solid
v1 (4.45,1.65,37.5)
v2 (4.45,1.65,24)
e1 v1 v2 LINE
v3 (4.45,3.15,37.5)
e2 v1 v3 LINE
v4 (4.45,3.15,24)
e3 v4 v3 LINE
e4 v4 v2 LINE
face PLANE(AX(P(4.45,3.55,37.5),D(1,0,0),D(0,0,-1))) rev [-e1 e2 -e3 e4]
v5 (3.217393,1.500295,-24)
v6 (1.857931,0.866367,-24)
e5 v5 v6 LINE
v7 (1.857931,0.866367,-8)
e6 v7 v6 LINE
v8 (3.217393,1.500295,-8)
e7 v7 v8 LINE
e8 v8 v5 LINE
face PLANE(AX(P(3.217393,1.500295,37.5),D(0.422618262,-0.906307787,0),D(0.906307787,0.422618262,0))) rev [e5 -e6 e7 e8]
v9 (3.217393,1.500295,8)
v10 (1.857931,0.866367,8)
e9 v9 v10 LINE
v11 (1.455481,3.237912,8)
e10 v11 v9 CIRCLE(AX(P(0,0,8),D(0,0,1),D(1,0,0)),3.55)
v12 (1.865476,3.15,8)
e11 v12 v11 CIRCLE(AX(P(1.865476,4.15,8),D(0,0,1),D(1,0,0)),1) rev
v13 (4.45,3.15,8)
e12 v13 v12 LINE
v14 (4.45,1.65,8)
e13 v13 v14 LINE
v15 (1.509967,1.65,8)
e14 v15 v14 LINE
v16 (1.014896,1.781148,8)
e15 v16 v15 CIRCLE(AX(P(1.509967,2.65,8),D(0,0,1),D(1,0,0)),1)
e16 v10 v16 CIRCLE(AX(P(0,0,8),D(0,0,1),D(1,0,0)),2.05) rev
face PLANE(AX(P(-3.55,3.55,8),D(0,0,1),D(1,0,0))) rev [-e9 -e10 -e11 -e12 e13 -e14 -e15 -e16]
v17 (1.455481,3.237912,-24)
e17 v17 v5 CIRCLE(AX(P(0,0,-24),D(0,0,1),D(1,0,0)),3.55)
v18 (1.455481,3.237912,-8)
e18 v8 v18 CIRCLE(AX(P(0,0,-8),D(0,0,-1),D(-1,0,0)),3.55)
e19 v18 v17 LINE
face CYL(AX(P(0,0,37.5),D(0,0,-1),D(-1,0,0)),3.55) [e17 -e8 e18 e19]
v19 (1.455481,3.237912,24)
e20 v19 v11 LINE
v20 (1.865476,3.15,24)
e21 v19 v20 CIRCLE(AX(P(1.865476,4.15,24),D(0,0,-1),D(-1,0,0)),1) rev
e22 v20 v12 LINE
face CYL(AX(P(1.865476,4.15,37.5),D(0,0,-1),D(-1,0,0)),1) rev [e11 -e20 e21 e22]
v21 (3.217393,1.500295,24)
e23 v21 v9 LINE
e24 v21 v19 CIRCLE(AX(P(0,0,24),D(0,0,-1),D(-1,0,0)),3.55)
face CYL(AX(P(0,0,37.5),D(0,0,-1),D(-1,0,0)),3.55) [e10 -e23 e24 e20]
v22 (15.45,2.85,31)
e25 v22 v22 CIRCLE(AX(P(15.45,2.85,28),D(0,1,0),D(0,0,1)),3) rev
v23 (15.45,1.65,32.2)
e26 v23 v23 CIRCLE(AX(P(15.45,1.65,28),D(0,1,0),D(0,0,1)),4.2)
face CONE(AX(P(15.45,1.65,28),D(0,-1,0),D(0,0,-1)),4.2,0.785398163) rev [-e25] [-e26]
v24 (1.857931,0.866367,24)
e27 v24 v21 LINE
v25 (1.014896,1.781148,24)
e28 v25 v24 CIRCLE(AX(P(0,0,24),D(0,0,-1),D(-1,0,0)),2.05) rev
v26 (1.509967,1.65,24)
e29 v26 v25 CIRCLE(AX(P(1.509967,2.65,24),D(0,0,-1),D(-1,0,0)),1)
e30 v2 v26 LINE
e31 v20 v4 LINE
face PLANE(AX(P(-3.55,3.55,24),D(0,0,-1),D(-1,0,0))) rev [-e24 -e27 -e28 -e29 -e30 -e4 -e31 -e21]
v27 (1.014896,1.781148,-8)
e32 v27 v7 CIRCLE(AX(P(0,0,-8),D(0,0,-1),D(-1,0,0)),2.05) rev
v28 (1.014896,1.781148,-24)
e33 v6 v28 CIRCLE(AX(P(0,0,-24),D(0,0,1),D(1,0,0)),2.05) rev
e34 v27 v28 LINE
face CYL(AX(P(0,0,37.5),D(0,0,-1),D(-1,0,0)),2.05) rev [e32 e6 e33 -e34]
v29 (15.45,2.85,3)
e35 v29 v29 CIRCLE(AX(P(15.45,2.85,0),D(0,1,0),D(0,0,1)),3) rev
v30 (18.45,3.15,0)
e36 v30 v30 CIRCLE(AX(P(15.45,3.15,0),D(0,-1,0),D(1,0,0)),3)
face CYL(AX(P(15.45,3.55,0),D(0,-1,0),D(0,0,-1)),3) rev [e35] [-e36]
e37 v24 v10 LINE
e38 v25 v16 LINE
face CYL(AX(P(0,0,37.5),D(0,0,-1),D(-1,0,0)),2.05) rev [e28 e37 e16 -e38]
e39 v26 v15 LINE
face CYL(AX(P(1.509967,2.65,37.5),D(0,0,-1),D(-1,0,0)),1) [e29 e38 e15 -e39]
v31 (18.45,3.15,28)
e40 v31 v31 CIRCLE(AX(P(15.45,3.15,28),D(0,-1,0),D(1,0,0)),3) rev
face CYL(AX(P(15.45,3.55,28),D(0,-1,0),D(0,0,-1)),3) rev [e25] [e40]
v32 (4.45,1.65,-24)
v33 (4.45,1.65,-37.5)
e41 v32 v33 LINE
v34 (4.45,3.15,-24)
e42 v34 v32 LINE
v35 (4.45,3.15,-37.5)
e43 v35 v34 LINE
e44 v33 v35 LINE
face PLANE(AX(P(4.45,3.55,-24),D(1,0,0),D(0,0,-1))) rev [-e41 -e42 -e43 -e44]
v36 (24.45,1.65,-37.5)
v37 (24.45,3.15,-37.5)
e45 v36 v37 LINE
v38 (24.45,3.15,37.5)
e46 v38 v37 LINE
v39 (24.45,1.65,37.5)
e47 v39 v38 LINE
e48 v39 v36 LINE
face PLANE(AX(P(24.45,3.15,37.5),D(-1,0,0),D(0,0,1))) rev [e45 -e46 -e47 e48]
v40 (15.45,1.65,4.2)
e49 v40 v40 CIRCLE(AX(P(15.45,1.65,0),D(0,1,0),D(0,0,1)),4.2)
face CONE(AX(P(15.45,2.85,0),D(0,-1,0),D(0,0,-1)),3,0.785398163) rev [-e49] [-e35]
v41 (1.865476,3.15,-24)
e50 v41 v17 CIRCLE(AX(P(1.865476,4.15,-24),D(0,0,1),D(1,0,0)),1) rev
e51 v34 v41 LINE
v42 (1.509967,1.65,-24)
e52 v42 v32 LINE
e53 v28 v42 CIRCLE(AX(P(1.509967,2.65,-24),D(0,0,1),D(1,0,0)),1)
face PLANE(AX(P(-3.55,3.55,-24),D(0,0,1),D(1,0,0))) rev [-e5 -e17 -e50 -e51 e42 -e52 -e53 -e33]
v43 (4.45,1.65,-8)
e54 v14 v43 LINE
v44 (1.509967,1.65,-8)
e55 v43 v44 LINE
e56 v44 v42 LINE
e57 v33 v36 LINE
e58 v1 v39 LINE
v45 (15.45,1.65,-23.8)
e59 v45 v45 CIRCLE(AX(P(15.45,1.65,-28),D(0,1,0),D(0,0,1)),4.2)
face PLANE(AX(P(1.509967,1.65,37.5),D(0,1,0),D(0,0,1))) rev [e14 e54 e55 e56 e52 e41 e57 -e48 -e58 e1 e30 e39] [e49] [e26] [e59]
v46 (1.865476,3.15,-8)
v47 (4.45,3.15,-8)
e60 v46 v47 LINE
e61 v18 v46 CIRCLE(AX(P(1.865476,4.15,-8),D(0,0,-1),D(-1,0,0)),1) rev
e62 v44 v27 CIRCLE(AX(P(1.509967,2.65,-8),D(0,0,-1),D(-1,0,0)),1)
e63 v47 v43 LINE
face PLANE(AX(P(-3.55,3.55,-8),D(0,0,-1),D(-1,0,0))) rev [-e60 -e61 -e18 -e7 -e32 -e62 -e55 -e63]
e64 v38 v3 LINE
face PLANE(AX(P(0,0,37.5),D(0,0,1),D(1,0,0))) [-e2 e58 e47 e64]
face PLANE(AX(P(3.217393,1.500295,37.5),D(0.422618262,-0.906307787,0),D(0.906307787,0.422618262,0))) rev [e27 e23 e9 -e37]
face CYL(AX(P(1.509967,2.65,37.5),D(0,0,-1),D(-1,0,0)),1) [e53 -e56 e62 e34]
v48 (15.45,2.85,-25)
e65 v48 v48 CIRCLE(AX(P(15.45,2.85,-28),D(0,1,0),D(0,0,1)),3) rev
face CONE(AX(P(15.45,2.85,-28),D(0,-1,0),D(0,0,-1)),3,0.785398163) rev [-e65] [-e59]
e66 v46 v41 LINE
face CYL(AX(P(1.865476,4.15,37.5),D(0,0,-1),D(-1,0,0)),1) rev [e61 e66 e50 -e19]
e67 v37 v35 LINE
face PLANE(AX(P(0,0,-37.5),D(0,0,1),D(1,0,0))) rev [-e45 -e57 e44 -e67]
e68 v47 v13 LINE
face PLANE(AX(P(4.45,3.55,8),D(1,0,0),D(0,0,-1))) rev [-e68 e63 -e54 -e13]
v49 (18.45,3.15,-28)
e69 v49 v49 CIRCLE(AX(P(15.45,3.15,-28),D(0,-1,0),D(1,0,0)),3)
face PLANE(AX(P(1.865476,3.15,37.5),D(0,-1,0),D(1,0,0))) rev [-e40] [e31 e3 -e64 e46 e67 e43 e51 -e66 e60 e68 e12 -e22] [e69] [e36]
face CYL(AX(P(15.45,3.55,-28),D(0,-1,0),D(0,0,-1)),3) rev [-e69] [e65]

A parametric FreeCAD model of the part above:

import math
import FreeCAD as App
import Part
import Sketcher

V = App.Vector
Q = App.Units.Quantity


def edges_at(feature, points):
    """Names of the edges that pass closest to the given points."""
    edges = feature.Shape.Edges
    near = lambda p: min(range(len(edges)), key=lambda i: edges[i].distToShape(Part.Vertex(*p))[0])
    return sorted({f"Edge{near(p) + 1}" for p in points})

doc = App.newDocument("Part")
params = doc.addObject("Spreadsheet::Sheet", "Params")
for row, (alias, value) in enumerate([
    ("sketch1_radius", "1 mm"),
    ("sketch1_radius2", "3.55 mm"),
    ("sketch1_radius3", "2.05 mm"),
    ("sketch1_height", "1.5 mm"),
    ("pad1_length", "75 mm"),
    ("sketch2_width", "8 mm"),
    ("sketch2_height", "16 mm"),
    ("sketch3_width", "8 mm"),
    ("sketch3_height", "13.5 mm"),
    ("sketch4_diameter", "6 mm"),
    ("linearpattern_pitch", "28 mm"),
    ("sketch5_diameter", "6 mm"),
    ("sketch6_diameter", "6 mm"),
    ("chamfer_size", "1.2 mm"),
], start=1):
    params.set(f"A{row}", alias)
    params.set(f"B{row}", "=" + value)
    params.setAlias(f"B{row}", alias)

body = doc.addObject("PartDesign::Body", "Body")

# Sketch on XY plane
sketch1 = body.newObject("Sketcher::SketchObject", "Sketch")
sketch1.AttachmentSupport = (doc.getObject("XY_Plane"), [""])
sketch1.MapMode = "FlatFace"
sketch1.addGeometry([
    Part.LineSegment(V(24.45, 3.15, 0), V(1.865476, 3.15, 0)),  # 0
    Part.ArcOfCircle(Part.Circle(V(1.865476, 4.15, 0), V(0, 0, 1), 1), math.radians(-114.204501), math.radians(-90)),  # 1
    Part.ArcOfCircle(Part.Circle(V(0, 0, 0), V(0, 0, 1), 3.55), math.radians(65.795499), math.radians(385)),  # 2
    Part.LineSegment(V(3.217393, 1.500295, 0), V(1.857931, 0.866367, 0)),  # 3
    Part.ArcOfCircle(Part.Circle(V(0, 0, 0), V(0, 0, 1), 2.05), math.radians(60.32556), math.radians(385)),  # 4
    Part.ArcOfCircle(Part.Circle(V(1.509967, 2.65, 0), V(0, 0, 1), 1), math.radians(-119.67444), math.radians(-90)),  # 5
    Part.LineSegment(V(1.509967, 1.65, 0), V(24.45, 1.65, 0)),  # 6
    Part.LineSegment(V(24.45, 1.65, 0), V(24.45, 3.15, 0)),  # 7
], False)
sketch1.addConstraint([
    Sketcher.Constraint("Tangent", 0, 2, 1, 2),
    Sketcher.Constraint("Tangent", 1, 1, 2, 1),
    Sketcher.Constraint("Coincident", 2, 2, 3, 1),
    Sketcher.Constraint("Coincident", 3, 2, 4, 2),
    Sketcher.Constraint("Tangent", 4, 1, 5, 1),
    Sketcher.Constraint("Tangent", 5, 2, 6, 1),
    Sketcher.Constraint("Coincident", 6, 2, 7, 1),
    Sketcher.Constraint("Coincident", 7, 2, 0, 1),
    Sketcher.Constraint("Horizontal", 0),
    Sketcher.Constraint("Horizontal", 6),
    Sketcher.Constraint("Vertical", 7),
    Sketcher.Constraint("Coincident", 2, 3, -1, 1),
    Sketcher.Constraint("Coincident", 4, 3, -1, 1),
    Sketcher.Constraint("Equal", 1, 5),
    Sketcher.Constraint("Radius", 1, 1.0),
    Sketcher.Constraint("Angle", 3, Q("-155 deg")),
    Sketcher.Constraint("Radius", 2, 3.55),
    Sketcher.Constraint("Radius", 4, 2.05),
    Sketcher.Constraint("DistanceY", 7, 1, 7, 2, 1.5),
    Sketcher.Constraint("DistanceY", -1, 1, 1, 3, 4.15),
    Sketcher.Constraint("DistanceX", -1, 1, 6, 2, 24.45),
    Sketcher.Constraint("DistanceX", -1, 1, 3, 2, 1.857931),
])
sketch1.setExpression("Constraints[14]", "Params.sketch1_radius")
sketch1.setExpression("Constraints[16]", "Params.sketch1_radius2")
sketch1.setExpression("Constraints[17]", "Params.sketch1_radius3")
sketch1.setExpression("Constraints[18]", "Params.sketch1_height")
pad1 = body.newObject("PartDesign::Pad", "Pad")
pad1.Profile = sketch1
pad1.setExpression("Length", "Params.pad1_length")
pad1.Midplane = True

# Sketch on XZ plane
sketch2 = body.newObject("Sketcher::SketchObject", "Sketch001")
sketch2.AttachmentSupport = (doc.getObject("XZ_Plane"), [""])
sketch2.MapMode = "FlatFace"
sketch2.AttachmentOffset = App.Placement(V(0, 0, -1.65), App.Rotation())
sketch2.addGeometry([
    Part.LineSegment(V(-3.55, 8, 0), V(-3.55, -8, 0)),
    Part.LineSegment(V(-3.55, -8, 0), V(4.45, -8, 0)),
    Part.LineSegment(V(4.45, -8, 0), V(4.45, 8, 0)),
    Part.LineSegment(V(4.45, 8, 0), V(-3.55, 8, 0)),
], False)
sketch2.addConstraint([
    Sketcher.Constraint("Coincident", 0, 2, 1, 1),
    Sketcher.Constraint("Coincident", 1, 2, 2, 1),
    Sketcher.Constraint("Coincident", 2, 2, 3, 1),
    Sketcher.Constraint("Coincident", 3, 2, 0, 1),
    Sketcher.Constraint("Vertical", 0),
    Sketcher.Constraint("Horizontal", 1),
    Sketcher.Constraint("Vertical", 2),
    Sketcher.Constraint("Horizontal", 3),
    Sketcher.Constraint("DistanceX", 1, 1, 1, 2, 8.0),
    Sketcher.Constraint("DistanceY", 0, 2, 0, 1, 16.0),
    Sketcher.Constraint("DistanceY", 0, 2, -1, 1, 8.0),
    Sketcher.Constraint("DistanceX", 0, 2, -1, 1, 3.55),
])
sketch2.setExpression("Constraints[8]", "Params.sketch2_width")
sketch2.setExpression("Constraints[9]", "Params.sketch2_height")
pocket1 = body.newObject("PartDesign::Pocket", "Pocket")
pocket1.Profile = sketch2
pocket1.Type = "ThroughAll"
pocket1.Midplane = True

# Sketch on XZ plane
sketch3 = body.newObject("Sketcher::SketchObject", "Sketch002")
sketch3.AttachmentSupport = (doc.getObject("XZ_Plane"), [""])
sketch3.MapMode = "FlatFace"
sketch3.AttachmentOffset = App.Placement(V(0, 0, -1.65), App.Rotation())
sketch3.addGeometry([
    Part.LineSegment(V(-3.55, 37.5, 0), V(-3.55, 24, 0)),  # 0
    Part.LineSegment(V(-3.55, 24, 0), V(4.45, 24, 0)),  # 1
    Part.LineSegment(V(4.45, 24, 0), V(4.45, 37.5, 0)),  # 2
    Part.LineSegment(V(4.45, 37.5, 0), V(-3.55, 37.5, 0)),  # 3
    Part.LineSegment(V(-3.55, -24, 0), V(-3.55, -37.5, 0)),  # 4
    Part.LineSegment(V(-3.55, -37.5, 0), V(4.45, -37.5, 0)),  # 5
    Part.LineSegment(V(4.45, -37.5, 0), V(4.45, -24, 0)),  # 6
    Part.LineSegment(V(4.45, -24, 0), V(-3.55, -24, 0)),  # 7
], False)
sketch3.addConstraint([
    Sketcher.Constraint("Coincident", 0, 2, 1, 1),
    Sketcher.Constraint("Coincident", 1, 2, 2, 1),
    Sketcher.Constraint("Coincident", 2, 2, 3, 1),
    Sketcher.Constraint("Coincident", 3, 2, 0, 1),
    Sketcher.Constraint("Coincident", 4, 2, 5, 1),
    Sketcher.Constraint("Coincident", 5, 2, 6, 1),
    Sketcher.Constraint("Coincident", 6, 2, 7, 1),
    Sketcher.Constraint("Coincident", 7, 2, 4, 1),
    Sketcher.Constraint("Vertical", 0),
    Sketcher.Constraint("Horizontal", 1),
    Sketcher.Constraint("Vertical", 2),
    Sketcher.Constraint("Horizontal", 3),
    Sketcher.Constraint("Vertical", 4),
    Sketcher.Constraint("Horizontal", 5),
    Sketcher.Constraint("Vertical", 6),
    Sketcher.Constraint("Horizontal", 7),
    Sketcher.Constraint("Symmetric", 3, 2, 4, 2, -1),
    Sketcher.Constraint("Symmetric", 1, 2, 6, 2, -1),
    Sketcher.Constraint("DistanceX", 1, 1, 1, 2, 8.0),
    Sketcher.Constraint("DistanceY", 0, 2, 0, 1, 13.5),
    Sketcher.Constraint("DistanceY", -1, 1, 0, 2, 24.0),
    Sketcher.Constraint("DistanceX", 0, 2, -1, 1, 3.55),
])
sketch3.setExpression("Constraints[18]", "Params.sketch3_width")
sketch3.setExpression("Constraints[19]", "Params.sketch3_height")
pocket2 = body.newObject("PartDesign::Pocket", "Pocket001")
pocket2.Profile = sketch3
pocket2.Type = "ThroughAll"
pocket2.Midplane = True

# Sketch on XZ plane
sketch4 = body.newObject("Sketcher::SketchObject", "Sketch003")
sketch4.AttachmentSupport = (doc.getObject("XZ_Plane"), [""])
sketch4.MapMode = "FlatFace"
sketch4.AttachmentOffset = App.Placement(V(0, 0, -1.65), App.Rotation())
sketch4.addGeometry(Part.Circle(V(15.45, 0, 0), V(0, 0, 1), 3), False)
sketch4.addConstraint([
    Sketcher.Constraint("PointOnObject", 0, 3, -1),
    Sketcher.Constraint("Diameter", 0, 6.0),
    Sketcher.Constraint("DistanceX", -1, 1, 0, 3, 15.45),
])
sketch4.setExpression("Constraints[1]", "Params.sketch4_diameter")
pocket3 = body.newObject("PartDesign::Pocket", "Pocket002")
pocket3.Profile = sketch4
pocket3.Type = "ThroughAll"
doc.recompute()

linearpattern = body.newObject("PartDesign::LinearPattern", "LinearPattern")
linearpattern.Originals = [pocket3]
linearpattern.Direction = (doc.getObject("Z_Axis"), [""])
linearpattern.Mode = "offset"
linearpattern.setExpression("Offset", "Params.linearpattern_pitch")
linearpattern.Occurrences = 2
linearpattern.Reversed = True
body.Tip = linearpattern

# Sketch on XZ plane
sketch5 = body.newObject("Sketcher::SketchObject", "Sketch004")
sketch5.AttachmentSupport = (doc.getObject("XZ_Plane"), [""])
sketch5.MapMode = "FlatFace"
sketch5.AttachmentOffset = App.Placement(V(0, 0, -1.65), App.Rotation())
sketch5.addGeometry(Part.Circle(V(15.45, 28, 0), V(0, 0, 1), 3), False)
sketch5.addConstraint([
    Sketcher.Constraint("Diameter", 0, 6.0),
    Sketcher.Constraint("DistanceY", -1, 1, 0, 3, 28.0),
    Sketcher.Constraint("DistanceX", -1, 1, 0, 3, 15.45),
])
sketch5.setExpression("Constraints[0]", "Params.sketch5_diameter")
pocket4 = body.newObject("PartDesign::Pocket", "Pocket003")
pocket4.Profile = sketch5
pocket4.Type = "ThroughAll"

# Sketch on XZ plane
sketch6 = body.newObject("Sketcher::SketchObject", "Sketch005")
sketch6.AttachmentSupport = (doc.getObject("XZ_Plane"), [""])
sketch6.MapMode = "FlatFace"
sketch6.AttachmentOffset = App.Placement(V(0, 0, -1.65), App.Rotation())
sketch6.addGeometry(Part.Circle(V(15.45, 0, 0), V(0, 0, 1), 3), False)
sketch6.addConstraint([
    Sketcher.Constraint("PointOnObject", 0, 3, -1),
    Sketcher.Constraint("Diameter", 0, 6.0),
    Sketcher.Constraint("DistanceX", -1, 1, 0, 3, 15.45),
])
sketch6.setExpression("Constraints[1]", "Params.sketch6_diameter")
pocket5 = body.newObject("PartDesign::Pocket", "Pocket004")
pocket5.Profile = sketch6
pocket5.Type = "ThroughAll"
doc.recompute()

chamfer = body.newObject("PartDesign::Chamfer", "Chamfer")
chamfer.Base = (pocket5, edges_at(pocket5, [(15.45, 1.65, 3), (15.45, 1.65, -25), (12.45, 1.65, 28)]))
chamfer.setExpression("Size", "Params.chamfer_size")

doc.recompute()
